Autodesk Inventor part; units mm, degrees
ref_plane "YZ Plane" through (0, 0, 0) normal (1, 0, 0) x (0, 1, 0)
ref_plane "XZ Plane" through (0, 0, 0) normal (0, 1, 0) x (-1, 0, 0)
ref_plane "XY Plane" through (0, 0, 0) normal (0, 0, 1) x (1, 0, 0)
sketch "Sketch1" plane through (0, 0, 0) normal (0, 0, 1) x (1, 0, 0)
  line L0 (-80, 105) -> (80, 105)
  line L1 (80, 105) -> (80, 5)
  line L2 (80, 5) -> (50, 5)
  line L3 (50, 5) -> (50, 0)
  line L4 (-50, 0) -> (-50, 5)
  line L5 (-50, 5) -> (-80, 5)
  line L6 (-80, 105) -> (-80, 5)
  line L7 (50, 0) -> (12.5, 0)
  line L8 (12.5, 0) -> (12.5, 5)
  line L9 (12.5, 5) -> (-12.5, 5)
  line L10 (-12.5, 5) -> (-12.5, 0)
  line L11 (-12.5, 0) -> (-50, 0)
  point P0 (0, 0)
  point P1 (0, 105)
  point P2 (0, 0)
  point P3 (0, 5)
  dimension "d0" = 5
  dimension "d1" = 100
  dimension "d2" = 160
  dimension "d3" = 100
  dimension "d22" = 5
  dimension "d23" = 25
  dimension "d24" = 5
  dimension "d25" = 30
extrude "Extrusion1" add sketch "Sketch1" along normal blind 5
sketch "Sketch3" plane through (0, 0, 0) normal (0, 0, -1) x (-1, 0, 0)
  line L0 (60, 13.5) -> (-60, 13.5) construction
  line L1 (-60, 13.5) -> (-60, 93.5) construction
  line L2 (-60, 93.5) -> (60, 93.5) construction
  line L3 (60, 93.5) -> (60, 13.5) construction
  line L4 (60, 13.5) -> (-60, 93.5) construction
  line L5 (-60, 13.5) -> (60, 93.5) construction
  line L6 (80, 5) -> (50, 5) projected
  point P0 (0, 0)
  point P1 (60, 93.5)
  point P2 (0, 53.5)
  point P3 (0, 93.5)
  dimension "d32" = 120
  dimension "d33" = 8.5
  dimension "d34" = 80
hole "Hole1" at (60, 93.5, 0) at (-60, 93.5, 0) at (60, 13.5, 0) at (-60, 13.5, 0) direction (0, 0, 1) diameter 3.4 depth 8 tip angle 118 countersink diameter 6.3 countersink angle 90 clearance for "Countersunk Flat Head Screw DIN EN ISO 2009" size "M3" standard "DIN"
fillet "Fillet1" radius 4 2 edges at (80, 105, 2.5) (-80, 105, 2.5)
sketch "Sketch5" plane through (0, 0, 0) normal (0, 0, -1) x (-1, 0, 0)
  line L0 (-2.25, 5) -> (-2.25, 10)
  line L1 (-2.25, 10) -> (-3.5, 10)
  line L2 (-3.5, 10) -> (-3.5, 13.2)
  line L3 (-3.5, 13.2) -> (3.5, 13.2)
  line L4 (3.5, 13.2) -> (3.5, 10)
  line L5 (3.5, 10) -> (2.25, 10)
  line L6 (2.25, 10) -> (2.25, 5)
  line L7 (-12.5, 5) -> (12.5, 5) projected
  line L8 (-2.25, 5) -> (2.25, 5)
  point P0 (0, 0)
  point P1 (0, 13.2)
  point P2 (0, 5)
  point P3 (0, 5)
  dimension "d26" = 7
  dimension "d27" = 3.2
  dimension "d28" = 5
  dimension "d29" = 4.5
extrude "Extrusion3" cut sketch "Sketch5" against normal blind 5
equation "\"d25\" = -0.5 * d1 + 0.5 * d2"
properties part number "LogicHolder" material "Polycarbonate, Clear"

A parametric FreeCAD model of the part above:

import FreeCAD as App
import Part
import Sketcher

V = App.Vector
Q = App.Units.Quantity


def edges_at(feature, points):
    """Names of the edges that pass closest to the given points."""
    edges = feature.Shape.Edges
    near = lambda p: min(range(len(edges)), key=lambda i: edges[i].distToShape(Part.Vertex(*p))[0])
    return sorted({f"Edge{near(p) + 1}" for p in points})


def add_polygon(sketch, points):
    """Adds a closed chain of lines whose ends are joined by coincident constraints."""
    first, n = sketch.GeometryCount, len(points)
    for a, b in zip(points, points[1:] + points[:1]):
        sketch.addGeometry(Part.LineSegment(App.Vector(*a, 0), App.Vector(*b, 0)), False)
    for i in range(n):
        sketch.addConstraint(Sketcher.Constraint("Coincident", first + i, 2, first + (i + 1) % n, 1))

doc = App.newDocument("Part")
body = doc.addObject("PartDesign::Body", "Body")

sketch1 = body.newObject("Sketcher::SketchObject", "Sketch")
sketch1.AttachmentSupport = (doc.getObject("XY_Plane"), [""])
sketch1.MapMode = "FlatFace"
add_polygon(sketch1, [(80, 105), (-80, 105), (-80, 5), (-50, 5), (-50, 0), (-12.5, 0), (-12.5, 5), (12.5, 5), (12.5, 0), (50, 0), (50, 5), (80, 5)])
sketch1.addConstraint([
    Sketcher.Constraint("Horizontal", 0),
    Sketcher.Constraint("Vertical", 1),
    Sketcher.Constraint("Horizontal", 2),
    Sketcher.Constraint("Vertical", 3),
    Sketcher.Constraint("Horizontal", 4),
    Sketcher.Constraint("Vertical", 5),
    Sketcher.Constraint("Horizontal", 6),
    Sketcher.Constraint("Vertical", 7),
    Sketcher.Constraint("Horizontal", 8),
    Sketcher.Constraint("Vertical", 9),
    Sketcher.Constraint("Horizontal", 10),
    Sketcher.Constraint("Vertical", 11),
    Sketcher.Constraint("Symmetric", 4, 2, 7, 2, -1, 1),
    Sketcher.Constraint("Symmetric", 3, 2, 8, 2, -2),
    Sketcher.Constraint("Symmetric", 1, 2, 10, 2, -2),
    Sketcher.Constraint("Horizontal", 2, 2, 5, 2),
    Sketcher.Constraint("DistanceX", 0, 2, 0, 1, Q("160 mm")),
    Sketcher.Constraint("DistanceX", 2, 1, 2, 2, Q("30 mm")),
    Sketcher.Constraint("DistanceX", 6, 1, 6, 2, Q("25 mm")),
    Sketcher.Constraint("DistanceY", 1, 2, 1, 1, Q("100 mm")),
    Sketcher.Constraint("DistanceY", 3, 2, 3, 1, Q("5 mm")),
])
pad1 = body.newObject("PartDesign::Pad", "Pad")
pad1.Profile = sketch1
pad1.Length = 5

sketch2 = body.newObject("Sketcher::SketchObject", "Sketch001")
sketch2.AttachmentSupport = (doc.getObject("XY_Plane"), [""])
sketch2.MapMode = "FlatFace"
sketch2.addGeometry([
    Part.Circle(V(60, 93.5, 0), V(0, 0, 1), 1.7),
    Part.Circle(V(-60, 93.5, 0), V(0, 0, 1), 1.7),
    Part.Circle(V(60, 13.5, 0), V(0, 0, 1), 1.7),
    Part.Circle(V(-60, 13.5, 0), V(0, 0, 1), 1.7),
], False)
sketch2.addConstraint([
    Sketcher.Constraint("Equal", 0, 1),
    Sketcher.Constraint("Equal", 1, 2),
    Sketcher.Constraint("Equal", 2, 3),
    Sketcher.Constraint("Symmetric", 0, 3, 1, 3, -2),
    Sketcher.Constraint("Symmetric", 2, 3, 3, 3, -2),
    Sketcher.Constraint("Vertical", 0, 3, 2, 3),
    Sketcher.Constraint("Diameter", 0, Q("3.4 mm")),
    Sketcher.Constraint("DistanceX", -1, 1, 0, 3, Q("60 mm")),
    Sketcher.Constraint("DistanceY", 2, 3, 0, 3, Q("80 mm")),
    Sketcher.Constraint("DistanceY", -1, 1, 0, 3, Q("93.5 mm")),
])
doc.recompute()
hole = body.newObject("PartDesign::Hole", "Hole")
hole.Profile = sketch2
hole.ThreadType = "None"
hole.Diameter = 3.4
hole.DepthType = "Dimension"
hole.Depth = 8
hole.DrillPoint = "Angled"
hole.DrillPointAngle = 118
hole.HoleCutType = "Countersink"
hole.HoleCutDiameter = 6.3
hole.HoleCutCountersinkAngle = 90
hole.Reversed = True
doc.recompute()

fillet = body.newObject("PartDesign::Fillet", "Fillet")
fillet.Base = (hole, edges_at(hole, [(80, 105, 2.5), (-80, 105, 2.5)]))
fillet.Radius = 4

sketch3 = body.newObject("Sketcher::SketchObject", "Sketch002")
sketch3.AttachmentSupport = (doc.getObject("XY_Plane"), [""])
sketch3.MapMode = "FlatFace"
add_polygon(sketch3, [(2.25, 10), (2.25, 5), (-2.25, 5), (-2.25, 10), (-3.5, 10), (-3.5, 13.2), (3.5, 13.2), (3.5, 10)])
sketch3.addConstraint([
    Sketcher.Constraint("Vertical", 0),
    Sketcher.Constraint("Horizontal", 1),
    Sketcher.Constraint("Vertical", 2),
    Sketcher.Constraint("Horizontal", 3),
    Sketcher.Constraint("Vertical", 4),
    Sketcher.Constraint("Horizontal", 5),
    Sketcher.Constraint("Vertical", 6),
    Sketcher.Constraint("Horizontal", 7),
    Sketcher.Constraint("Symmetric", 3, 2, 6, 2, -2),
    Sketcher.Constraint("Equal", 3, 7),
    Sketcher.Constraint("DistanceX", 5, 1, 5, 2, Q("7 mm")),
    Sketcher.Constraint("DistanceY", 0, 2, 0, 1, Q("5 mm")),
    Sketcher.Constraint("DistanceX", 1, 2, 1, 1, Q("4.5 mm")),
    Sketcher.Constraint("DistanceY", 4, 1, 4, 2, Q("3.2 mm")),
    Sketcher.Constraint("DistanceY", -1, 1, 0, 2, Q("5 mm")),
])
pocket1 = body.newObject("PartDesign::Pocket", "Pocket")
pocket1.Profile = sketch3
pocket1.Length = 5
pocket1.Reversed = True

doc.recompute()
